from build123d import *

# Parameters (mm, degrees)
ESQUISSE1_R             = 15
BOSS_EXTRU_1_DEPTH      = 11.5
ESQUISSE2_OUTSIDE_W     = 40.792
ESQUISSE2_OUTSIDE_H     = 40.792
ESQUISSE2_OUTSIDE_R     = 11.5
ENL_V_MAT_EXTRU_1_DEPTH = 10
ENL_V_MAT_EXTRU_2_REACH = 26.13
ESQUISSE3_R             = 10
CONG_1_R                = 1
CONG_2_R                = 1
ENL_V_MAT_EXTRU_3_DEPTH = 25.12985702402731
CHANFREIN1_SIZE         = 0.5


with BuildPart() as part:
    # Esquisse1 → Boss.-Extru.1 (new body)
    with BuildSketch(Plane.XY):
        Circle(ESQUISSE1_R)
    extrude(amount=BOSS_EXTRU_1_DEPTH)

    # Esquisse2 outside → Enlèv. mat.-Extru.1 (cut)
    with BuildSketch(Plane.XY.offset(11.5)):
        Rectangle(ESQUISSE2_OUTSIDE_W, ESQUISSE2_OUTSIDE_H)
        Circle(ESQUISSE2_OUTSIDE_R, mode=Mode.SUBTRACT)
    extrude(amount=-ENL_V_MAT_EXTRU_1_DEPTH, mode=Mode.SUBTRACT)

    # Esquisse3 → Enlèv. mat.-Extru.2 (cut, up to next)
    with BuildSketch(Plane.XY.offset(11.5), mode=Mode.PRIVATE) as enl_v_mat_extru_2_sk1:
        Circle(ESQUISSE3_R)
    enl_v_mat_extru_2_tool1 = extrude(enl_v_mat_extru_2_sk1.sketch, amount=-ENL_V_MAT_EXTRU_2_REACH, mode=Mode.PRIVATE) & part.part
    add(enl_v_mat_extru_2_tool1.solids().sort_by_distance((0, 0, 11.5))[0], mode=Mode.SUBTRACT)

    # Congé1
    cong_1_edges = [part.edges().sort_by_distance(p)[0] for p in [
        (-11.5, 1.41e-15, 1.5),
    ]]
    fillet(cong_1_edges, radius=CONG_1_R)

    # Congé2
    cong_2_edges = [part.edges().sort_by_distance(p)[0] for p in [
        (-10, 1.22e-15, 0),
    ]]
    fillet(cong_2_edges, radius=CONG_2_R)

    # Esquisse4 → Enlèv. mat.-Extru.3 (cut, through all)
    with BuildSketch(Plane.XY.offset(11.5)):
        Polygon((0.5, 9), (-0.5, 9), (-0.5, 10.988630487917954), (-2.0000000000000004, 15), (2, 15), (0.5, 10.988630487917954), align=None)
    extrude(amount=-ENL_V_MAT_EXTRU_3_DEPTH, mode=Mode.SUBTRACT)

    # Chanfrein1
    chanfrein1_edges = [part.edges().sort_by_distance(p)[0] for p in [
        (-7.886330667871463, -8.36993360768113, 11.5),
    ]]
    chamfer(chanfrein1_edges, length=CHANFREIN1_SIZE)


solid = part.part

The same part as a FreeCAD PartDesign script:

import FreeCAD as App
import Part
import Sketcher

V = App.Vector
Q = App.Units.Quantity


def edges_at(feature, points):
    """Names of the edges that pass closest to the given points."""
    edges = feature.Shape.Edges
    near = lambda p: min(range(len(edges)), key=lambda i: edges[i].distToShape(Part.Vertex(*p))[0])
    return sorted({f"Edge{near(p) + 1}" for p in points})

doc = App.newDocument("Part")
params = doc.addObject("Spreadsheet::Sheet", "Params")
for row, (alias, value) in enumerate([
    ("sketch1_diameter", "30 mm"),
    ("pad1_length", "11.5 mm"),
    ("sketch2_diameter", "23 mm"),
    ("pocket1_length", "10 mm"),
    ("sketch3_diameter", "20 mm"),
    ("fillet_radius", "1 mm"),
    ("fillet2_radius", "1 mm"),
    ("sketch4_width", "1 mm"),
    ("sketch4_width2", "4 mm"),
    ("chamfer_size", "0.5 mm"),
], start=1):
    params.set(f"A{row}", alias)
    params.set(f"B{row}", "=" + value)
    params.setAlias(f"B{row}", alias)

body = doc.addObject("PartDesign::Body", "Body")

# Sketch on XY plane
sketch1 = body.newObject("Sketcher::SketchObject", "Sketch")
sketch1.AttachmentSupport = (doc.getObject("XY_Plane"), [""])
sketch1.MapMode = "FlatFace"
sketch1.addGeometry(Part.Circle(V(0, 0, 0), V(0, 0, 1), 15), False)
sketch1.addConstraint([
    Sketcher.Constraint("Coincident", 0, 3, -1, 1),
    Sketcher.Constraint("Diameter", 0, Q("30 mm")),
])
sketch1.setExpression("Constraints[1]", "Params.sketch1_diameter")
pad1 = body.newObject("PartDesign::Pad", "Pad")
pad1.Profile = sketch1
pad1.setExpression("Length", "Params.pad1_length")

# Sketch on XY plane
sketch2 = body.newObject("Sketcher::SketchObject", "Sketch001")
sketch2.AttachmentSupport = (doc.getObject("XY_Plane"), [""])
sketch2.MapMode = "FlatFace"
sketch2.AttachmentOffset = App.Placement(V(0, 0, 11.5), App.Rotation())
sketch2.addGeometry([
    Part.LineSegment(V(-20, 20, 0), V(-20, -20, 0)),  # 0
    Part.LineSegment(V(-20, -20, 0), V(20, -20, 0)),  # 1
    Part.LineSegment(V(20, -20, 0), V(20, 20, 0)),  # 2
    Part.LineSegment(V(20, 20, 0), V(-20, 20, 0)),  # 3
    Part.Circle(V(0, 0, 0), V(0, 0, 1), 12),  # 4
], False)
sketch2.addConstraint([
    Sketcher.Constraint("Coincident", 0, 2, 1, 1),
    Sketcher.Constraint("Coincident", 1, 2, 2, 1),
    Sketcher.Constraint("Coincident", 2, 2, 3, 1),
    Sketcher.Constraint("Coincident", 3, 2, 0, 1),
    Sketcher.Constraint("Vertical", 0),
    Sketcher.Constraint("Horizontal", 1),
    Sketcher.Constraint("Vertical", 2),
    Sketcher.Constraint("Horizontal", 3),
    Sketcher.Constraint("Coincident", 4, 3, -1, 1),
    Sketcher.Constraint("Symmetric", 0, 2, 2, 2, -1, 1),
    Sketcher.Constraint("Equal", 3, 0),
    Sketcher.Constraint("Diameter", 4, Q("23 mm")),
    Sketcher.Constraint("DistanceX", 1, 1, 1, 2, Q("40.792 mm")),
])
sketch2.setExpression("Constraints[11]", "Params.sketch2_diameter")
pocket1 = body.newObject("PartDesign::Pocket", "Pocket")
pocket1.Profile = sketch2
pocket1.setExpression("Length", "Params.pocket1_length")

# Sketch on XY plane
sketch3 = body.newObject("Sketcher::SketchObject", "Sketch002")
sketch3.AttachmentSupport = (doc.getObject("XY_Plane"), [""])
sketch3.MapMode = "FlatFace"
sketch3.AttachmentOffset = App.Placement(V(0, 0, 11.5), App.Rotation())
sketch3.addGeometry(Part.Circle(V(0, 0, 0), V(0, 0, 1), 10), False)
sketch3.addConstraint([
    Sketcher.Constraint("Coincident", 0, 3, -1, 1),
    Sketcher.Constraint("Diameter", 0, Q("20 mm")),
])
sketch3.setExpression("Constraints[1]", "Params.sketch3_diameter")
pocket2 = body.newObject("PartDesign::Pocket", "Pocket001")
pocket2.Profile = sketch3
pocket2.Type = "UpToFirst"
doc.recompute()

fillet = body.newObject("PartDesign::Fillet", "Fillet")
fillet.Base = (pocket2, edges_at(pocket2, [(-11.5, 0, 1.5)]))
fillet.setExpression("Radius", "Params.fillet_radius")
doc.recompute()

fillet2 = body.newObject("PartDesign::Fillet", "Fillet001")
fillet2.Base = (fillet, edges_at(fillet, [(-10, 0, 0)]))
fillet2.setExpression("Radius", "Params.fillet2_radius")

# Sketch on XY plane
sketch4 = body.newObject("Sketcher::SketchObject", "Sketch003")
sketch4.AttachmentSupport = (doc.getObject("XY_Plane"), [""])
sketch4.MapMode = "FlatFace"
sketch4.AttachmentOffset = App.Placement(V(0, 0, 11.5), App.Rotation())
sketch4.addGeometry([
    Part.LineSegment(V(-0.5, 9, 0), V(0.5, 9, 0)),  # 0
    Part.LineSegment(V(0.5, 9, 0), V(0.5, 11, 0)),  # 1
    Part.LineSegment(V(0.5, 11, 0), V(2, 15, 0)),  # 2
    Part.LineSegment(V(2, 15, 0), V(-2, 15, 0)),  # 3
    Part.LineSegment(V(-2, 15, 0), V(-0.5, 11, 0)),  # 4
    Part.LineSegment(V(-0.5, 11, 0), V(-0.5, 9, 0)),  # 5
], False)
sketch4.addConstraint([
    Sketcher.Constraint("Coincident", 0, 2, 1, 1),
    Sketcher.Constraint("Coincident", 1, 2, 2, 1),
    Sketcher.Constraint("Coincident", 2, 2, 3, 1),
    Sketcher.Constraint("Coincident", 3, 2, 4, 1),
    Sketcher.Constraint("Coincident", 4, 2, 5, 1),
    Sketcher.Constraint("Coincident", 5, 2, 0, 1),
    Sketcher.Constraint("Horizontal", 0),
    Sketcher.Constraint("Vertical", 1),
    Sketcher.Constraint("Horizontal", 3),
    Sketcher.Constraint("Vertical", 5),
    Sketcher.Constraint("Symmetric", 1, 2, 4, 2, -2),
    Sketcher.Constraint("Equal", 2, 4),
    Sketcher.Constraint("DistanceX", 0, 1, 0, 2, Q("1 mm")),
    Sketcher.Constraint("DistanceX", 3, 2, 3, 1, Q("4 mm")),
    Sketcher.Constraint("DistanceY", -1, 1, 0, 2, Q("9 mm")),
    Sketcher.Constraint("DistanceY", -1, 1, 2, 2, Q("15 mm")),
    Sketcher.Constraint("DistanceY", 1, 1, 1, 2, Q("1.98863 mm")),
])
sketch4.setExpression("Constraints[12]", "Params.sketch4_width")
sketch4.setExpression("Constraints[13]", "Params.sketch4_width2")
pocket3 = body.newObject("PartDesign::Pocket", "Pocket002")
pocket3.Profile = sketch4
pocket3.Type = "ThroughAll"
doc.recompute()

chamfer = body.newObject("PartDesign::Chamfer", "Chamfer")
chamfer.Base = (pocket3, edges_at(pocket3, [(-7.886, -8.37, 11.5)]))
chamfer.setExpression("Size", "Params.chamfer_size")

doc.recompute()
